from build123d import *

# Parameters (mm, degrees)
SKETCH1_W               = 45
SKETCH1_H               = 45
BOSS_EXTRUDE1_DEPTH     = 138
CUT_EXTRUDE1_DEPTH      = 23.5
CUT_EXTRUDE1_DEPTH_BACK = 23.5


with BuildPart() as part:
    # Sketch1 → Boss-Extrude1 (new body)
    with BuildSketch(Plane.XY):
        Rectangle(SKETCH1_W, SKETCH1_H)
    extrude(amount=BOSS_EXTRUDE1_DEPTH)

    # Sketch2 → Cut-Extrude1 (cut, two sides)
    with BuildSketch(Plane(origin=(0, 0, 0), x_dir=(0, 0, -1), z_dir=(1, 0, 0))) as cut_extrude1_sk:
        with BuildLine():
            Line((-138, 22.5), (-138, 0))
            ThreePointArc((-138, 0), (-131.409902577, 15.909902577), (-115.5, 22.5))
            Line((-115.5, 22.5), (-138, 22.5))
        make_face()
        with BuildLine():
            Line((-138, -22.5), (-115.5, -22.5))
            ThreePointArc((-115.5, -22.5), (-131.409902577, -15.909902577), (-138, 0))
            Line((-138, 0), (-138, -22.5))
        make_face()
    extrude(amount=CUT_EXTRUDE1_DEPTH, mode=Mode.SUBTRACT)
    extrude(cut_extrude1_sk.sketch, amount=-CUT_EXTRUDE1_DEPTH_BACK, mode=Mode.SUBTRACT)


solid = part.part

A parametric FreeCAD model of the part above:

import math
import FreeCAD as App
import Part
import Sketcher

V = App.Vector


def add_polygon(sketch, points):
    """Adds a closed chain of lines whose ends are joined by coincident constraints."""
    first, n = sketch.GeometryCount, len(points)
    for a, b in zip(points, points[1:] + points[:1]):
        sketch.addGeometry(Part.LineSegment(App.Vector(*a, 0), App.Vector(*b, 0)), False)
    for i in range(n):
        sketch.addConstraint(Sketcher.Constraint("Coincident", first + i, 2, first + (i + 1) % n, 1))

doc = App.newDocument("Part")
body = doc.addObject("PartDesign::Body", "Body")

# Sketch on XY plane
sketch1 = body.newObject("Sketcher::SketchObject", "Sketch")
sketch1.AttachmentSupport = (doc.getObject("XY_Plane"), [""])
sketch1.MapMode = "FlatFace"
add_polygon(sketch1, [(-22.5, 22.5), (-22.5, -22.5), (22.5, -22.5), (22.5, 22.5)])  # lines 0-3
sketch1.addConstraint(Sketcher.Constraint("Vertical", 0))
sketch1.addConstraint(Sketcher.Constraint("Horizontal", 1))
sketch1.addConstraint(Sketcher.Constraint("Vertical", 2))
sketch1.addConstraint(Sketcher.Constraint("Horizontal", 3))
sketch1.addConstraint(Sketcher.Constraint("Symmetric", 0, 2, 2, 2, -1, 1))
sketch1.addConstraint(Sketcher.Constraint("Equal", 3, 0))
sketch1.addConstraint(Sketcher.Constraint("DistanceX", 1, 1, 1, 2, 45.0))
pad1 = body.newObject("PartDesign::Pad", "Pad")
pad1.Profile = sketch1
pad1.Length = 138

# Sketch on YZ plane
sketch2 = body.newObject("Sketcher::SketchObject", "Sketch001")
sketch2.AttachmentSupport = (doc.getObject("YZ_Plane"), [""])
sketch2.MapMode = "FlatFace"
sketch2.addGeometry(Part.LineSegment(V(22.5, 138, 0), V(0, 138, 0)), False)
sketch2.addGeometry(Part.ArcOfCircle(Part.Circle(V(0, 115.5, 0), V(0, 0, 1), 22.5), math.radians(0), math.radians(90)), False)
sketch2.addGeometry(Part.LineSegment(V(22.5, 115.5, 0), V(22.5, 138, 0)), False)
sketch2.addGeometry(Part.LineSegment(V(-22.5, 138, 0), V(-22.5, 115.5, 0)), False)
sketch2.addGeometry(Part.ArcOfCircle(Part.Circle(V(0, 115.5, 0), V(0, 0, 1), 22.5), math.radians(90), math.radians(180)), False)
sketch2.addGeometry(Part.LineSegment(V(0, 138, 0), V(-22.5, 138, 0)), False)
sketch2.addConstraint(Sketcher.Constraint("Tangent", 0, 2, 1, 2))
sketch2.addConstraint(Sketcher.Constraint("Tangent", 1, 1, 2, 1))
sketch2.addConstraint(Sketcher.Constraint("Coincident", 2, 2, 0, 1))
sketch2.addConstraint(Sketcher.Constraint("Tangent", 3, 2, 4, 2))
sketch2.addConstraint(Sketcher.Constraint("Tangent", 4, 1, 5, 1))
sketch2.addConstraint(Sketcher.Constraint("Coincident", 5, 2, 3, 1))
sketch2.addConstraint(Sketcher.Constraint("Horizontal", 0))
sketch2.addConstraint(Sketcher.Constraint("Vertical", 2))
sketch2.addConstraint(Sketcher.Constraint("Vertical", 3))
sketch2.addConstraint(Sketcher.Constraint("Horizontal", 5))
sketch2.addConstraint(Sketcher.Constraint("Coincident", 4, 3, 1, 3))
sketch2.addConstraint(Sketcher.Constraint("Equal", 1, 4))
sketch2.addConstraint(Sketcher.Constraint("PointOnObject", 1, 3, -2))
sketch2.addConstraint(Sketcher.Constraint("Radius", 1, 22.5))
sketch2.addConstraint(Sketcher.Constraint("DistanceY", -1, 1, 0, 2, 138.0))
pocket1 = body.newObject("PartDesign::Pocket", "Pocket")
pocket1.Profile = sketch2
pocket1.Type = "ThroughAll"
pocket1.Midplane = True

doc.recompute()
